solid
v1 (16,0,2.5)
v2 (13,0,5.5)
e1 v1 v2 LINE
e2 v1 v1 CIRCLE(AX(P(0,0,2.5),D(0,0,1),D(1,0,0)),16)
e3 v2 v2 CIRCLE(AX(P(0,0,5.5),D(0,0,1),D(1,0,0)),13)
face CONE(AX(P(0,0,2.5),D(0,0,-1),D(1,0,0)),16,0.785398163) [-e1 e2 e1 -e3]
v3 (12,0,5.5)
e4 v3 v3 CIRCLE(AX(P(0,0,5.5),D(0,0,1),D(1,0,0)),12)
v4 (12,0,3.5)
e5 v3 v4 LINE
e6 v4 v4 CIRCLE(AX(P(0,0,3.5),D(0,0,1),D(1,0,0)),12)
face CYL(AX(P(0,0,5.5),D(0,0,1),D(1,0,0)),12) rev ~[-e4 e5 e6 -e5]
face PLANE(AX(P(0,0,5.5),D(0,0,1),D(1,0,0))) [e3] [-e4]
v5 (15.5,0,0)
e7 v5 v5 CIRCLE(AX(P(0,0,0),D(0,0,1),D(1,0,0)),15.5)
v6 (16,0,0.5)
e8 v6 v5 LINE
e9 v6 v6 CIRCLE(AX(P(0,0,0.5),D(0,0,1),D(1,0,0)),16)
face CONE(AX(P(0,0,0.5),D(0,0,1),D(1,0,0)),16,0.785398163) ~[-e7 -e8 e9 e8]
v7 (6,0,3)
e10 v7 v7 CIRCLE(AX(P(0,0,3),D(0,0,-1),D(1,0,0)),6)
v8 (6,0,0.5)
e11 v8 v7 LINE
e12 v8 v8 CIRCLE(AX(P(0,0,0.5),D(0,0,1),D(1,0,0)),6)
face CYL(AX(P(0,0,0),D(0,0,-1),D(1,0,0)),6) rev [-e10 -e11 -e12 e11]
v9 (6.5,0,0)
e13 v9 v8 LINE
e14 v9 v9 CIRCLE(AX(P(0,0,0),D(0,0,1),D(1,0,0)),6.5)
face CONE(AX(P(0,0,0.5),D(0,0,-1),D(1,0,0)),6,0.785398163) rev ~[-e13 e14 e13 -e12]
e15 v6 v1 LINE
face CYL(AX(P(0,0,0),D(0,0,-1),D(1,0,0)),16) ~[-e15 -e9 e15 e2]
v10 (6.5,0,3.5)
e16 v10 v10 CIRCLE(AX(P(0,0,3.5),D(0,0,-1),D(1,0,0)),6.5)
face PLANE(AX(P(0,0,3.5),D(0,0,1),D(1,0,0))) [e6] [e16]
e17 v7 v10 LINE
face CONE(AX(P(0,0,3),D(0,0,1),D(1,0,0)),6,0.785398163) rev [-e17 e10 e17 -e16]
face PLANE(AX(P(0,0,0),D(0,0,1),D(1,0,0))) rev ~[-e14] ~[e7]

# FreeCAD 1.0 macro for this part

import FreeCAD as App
import Part
import Sketcher


def edges_at(feature, points):
    """Names of the edges that pass closest to the given points."""
    edges = feature.Shape.Edges
    near = lambda p: min(range(len(edges)), key=lambda i: edges[i].distToShape(Part.Vertex(*p))[0])
    return sorted({f"Edge{near(p) + 1}" for p in points})

doc = App.newDocument("Part")
body = doc.addObject("PartDesign::Body", "Body")

# Sketch on XY plane
sketch1 = body.newObject("Sketcher::SketchObject", "Sketch")
sketch1.AttachmentSupport = (doc.getObject("XY_Plane"), [""])
sketch1.MapMode = "FlatFace"
sketch1.addGeometry(Part.Circle(App.Vector(0, 0, 0), App.Vector(0, 0, 1), 16), False)
sketch1.addGeometry(Part.Circle(App.Vector(0, 0, 0), App.Vector(0, 0, 1), 6), False)
sketch1.addConstraint(Sketcher.Constraint("Coincident", 0, 3, -1, 1))
sketch1.addConstraint(Sketcher.Constraint("Coincident", 1, 3, -1, 1))
sketch1.addConstraint(Sketcher.Constraint("Diameter", 0, 32.0))
sketch1.addConstraint(Sketcher.Constraint("Diameter", 1, 12.0))
pad1 = body.newObject("PartDesign::Pad", "Pad")
pad1.Profile = sketch1
pad1.Length = 5.5

# Sketch on XY plane
sketch2 = body.newObject("Sketcher::SketchObject", "Sketch001")
sketch2.AttachmentSupport = (doc.getObject("XY_Plane"), [""])
sketch2.MapMode = "FlatFace"
sketch2.AttachmentOffset = App.Placement(App.Vector(0, 0, 5.5), App.Rotation())
sketch2.addGeometry(Part.Circle(App.Vector(0, 0, 0), App.Vector(0, 0, 1), 12), False)
sketch2.addConstraint(Sketcher.Constraint("Coincident", 0, 3, -1, 1))
sketch2.addConstraint(Sketcher.Constraint("Diameter", 0, 24.0))
pocket1 = body.newObject("PartDesign::Pocket", "Pocket")
pocket1.Profile = sketch2
pocket1.Length = 2
doc.recompute()

chamfer = body.newObject("PartDesign::Chamfer", "Chamfer")
chamfer.Base = (pocket1, edges_at(pocket1, [(-16, 0, 5.5)]))
chamfer.Size = 3
doc.recompute()

chamfer2 = body.newObject("PartDesign::Chamfer", "Chamfer001")
chamfer2.Base = (chamfer, edges_at(chamfer, [(-16, 0, 0), (-6, 0, 0), (-6, 0, 3.5)]))
chamfer2.Size = 0.5

doc.recompute()
